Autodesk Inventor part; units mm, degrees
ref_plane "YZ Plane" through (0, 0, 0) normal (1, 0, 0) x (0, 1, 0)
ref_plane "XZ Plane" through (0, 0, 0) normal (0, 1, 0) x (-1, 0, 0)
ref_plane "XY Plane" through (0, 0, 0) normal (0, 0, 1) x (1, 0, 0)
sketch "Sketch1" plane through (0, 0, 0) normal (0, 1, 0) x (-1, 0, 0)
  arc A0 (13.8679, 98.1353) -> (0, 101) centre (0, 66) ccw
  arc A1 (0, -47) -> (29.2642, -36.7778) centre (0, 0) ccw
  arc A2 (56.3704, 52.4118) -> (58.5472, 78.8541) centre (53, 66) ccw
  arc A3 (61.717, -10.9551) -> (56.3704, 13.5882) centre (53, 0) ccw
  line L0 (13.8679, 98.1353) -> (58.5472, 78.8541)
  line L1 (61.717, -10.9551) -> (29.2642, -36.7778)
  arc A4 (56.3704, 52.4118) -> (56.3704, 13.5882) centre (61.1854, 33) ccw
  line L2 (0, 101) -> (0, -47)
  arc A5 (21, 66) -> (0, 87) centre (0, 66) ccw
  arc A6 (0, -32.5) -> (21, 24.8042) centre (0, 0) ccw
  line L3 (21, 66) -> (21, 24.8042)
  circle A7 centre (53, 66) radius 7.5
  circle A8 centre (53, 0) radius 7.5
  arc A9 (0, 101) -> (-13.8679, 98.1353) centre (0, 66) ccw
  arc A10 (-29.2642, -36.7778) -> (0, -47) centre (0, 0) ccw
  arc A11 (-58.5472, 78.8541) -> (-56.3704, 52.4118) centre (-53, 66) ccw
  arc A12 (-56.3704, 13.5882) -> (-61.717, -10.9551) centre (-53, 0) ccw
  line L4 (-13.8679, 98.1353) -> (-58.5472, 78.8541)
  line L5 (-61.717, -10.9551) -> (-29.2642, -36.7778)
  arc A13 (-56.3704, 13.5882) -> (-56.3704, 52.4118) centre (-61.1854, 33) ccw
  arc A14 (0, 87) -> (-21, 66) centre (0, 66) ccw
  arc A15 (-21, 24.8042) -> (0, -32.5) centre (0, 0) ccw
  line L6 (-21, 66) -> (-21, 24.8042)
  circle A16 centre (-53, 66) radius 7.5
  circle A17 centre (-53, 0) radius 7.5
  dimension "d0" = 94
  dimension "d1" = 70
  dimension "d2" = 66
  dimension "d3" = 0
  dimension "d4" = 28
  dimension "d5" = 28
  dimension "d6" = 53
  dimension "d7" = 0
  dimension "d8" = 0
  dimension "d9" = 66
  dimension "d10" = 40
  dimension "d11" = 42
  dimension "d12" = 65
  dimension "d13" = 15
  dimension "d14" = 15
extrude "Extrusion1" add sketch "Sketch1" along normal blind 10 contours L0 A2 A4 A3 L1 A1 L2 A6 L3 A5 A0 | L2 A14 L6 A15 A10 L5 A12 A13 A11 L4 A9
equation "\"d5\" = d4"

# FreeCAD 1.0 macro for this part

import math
import FreeCAD as App
import Part
import Sketcher

doc = App.newDocument("Part")
body = doc.addObject("PartDesign::Body", "Body")

# Sketch on XZ plane
sketch1 = body.newObject("Sketcher::SketchObject", "Sketch")
sketch1.AttachmentSupport = (doc.getObject("XZ_Plane"), [""])
sketch1.MapMode = "FlatFace"
sketch1.addGeometry([
    Part.LineSegment(App.Vector(-58.5472, 78.8541, 0), App.Vector(-13.8679, 98.1353, 0)),  # 0
    Part.ArcOfCircle(Part.Circle(App.Vector(0.000402, 65.998727, 0), App.Vector(0, 0, 1), 35.001273), math.radians(90.000657), math.radians(113.342257)),  # 1
    Part.ArcOfCircle(Part.Circle(App.Vector(0.000136, 66.001328, 0), App.Vector(0, 0, 1), 34.998672), math.radians(66.656863), math.radians(90.000222)),  # 2
    Part.LineSegment(App.Vector(13.8679, 98.1353, 0), App.Vector(58.5472, 78.8541, 0)),  # 3
    Part.ArcOfCircle(Part.Circle(App.Vector(53, 66, 0), App.Vector(0, 0, 1), 13.999976), math.radians(-76.069567), math.radians(66.657338)),  # 4
    Part.ArcOfCircle(Part.Circle(App.Vector(61.1854, 33, 0), App.Vector(0, 0, 1), 20.000055), math.radians(103.930771), math.radians(256.069229)),  # 5
    Part.ArcOfCircle(Part.Circle(App.Vector(53, 0, 0), App.Vector(0, 0, 1), 13.999956), math.radians(-51.490648), math.radians(76.069567)),  # 6
    Part.LineSegment(App.Vector(61.717, -10.9551, 0), App.Vector(29.2642, -36.7778, 0)),  # 7
    Part.ArcOfCircle(Part.Circle(App.Vector(0, 0, 0), App.Vector(0, 0, 1), 47), math.radians(-90), math.radians(-51.490634)),  # 8
    Part.ArcOfCircle(Part.Circle(App.Vector(0, 0, 0), App.Vector(0, 0, 1), 47), math.radians(-128.509366), math.radians(-90)),  # 9
    Part.LineSegment(App.Vector(-29.2642, -36.7778, 0), App.Vector(-61.717, -10.9551, 0)),  # 10
    Part.ArcOfCircle(Part.Circle(App.Vector(-53, 0, 0), App.Vector(0, 0, 1), 14.000011), math.radians(103.930433), math.radians(231.490648)),  # 11
    Part.ArcOfCircle(Part.Circle(App.Vector(-61.1854, 33, 0), App.Vector(0, 0, 1), 20.000055), math.radians(-76.069229), math.radians(76.069229)),  # 12
    Part.ArcOfCircle(Part.Circle(App.Vector(-53, 66, 0), App.Vector(0, 0, 1), 13.999956), math.radians(113.342662), math.radians(256.069567)),  # 13
    Part.ArcOfCircle(Part.Circle(App.Vector(0, 0, 0), App.Vector(0, 0, 1), 32.499974), math.radians(130.25228), math.radians(270)),  # 14
    Part.ArcOfCircle(Part.Circle(App.Vector(0, 0, 0), App.Vector(0, 0, 1), 32.5), math.radians(-90), math.radians(49.74772)),  # 15
    Part.LineSegment(App.Vector(21, 24.8042, 0), App.Vector(21, 66, 0)),  # 16
    Part.ArcOfCircle(Part.Circle(App.Vector(0, 66, 0), App.Vector(0, 0, 1), 21), math.radians(0), math.radians(180)),  # 17
    Part.LineSegment(App.Vector(-21, 66, 0), App.Vector(-21, 24.8042, 0)),  # 18
    Part.Circle(App.Vector(-53, 0, 0), App.Vector(0, 0, 1), 7.5),  # 19
    Part.Circle(App.Vector(-53, 66, 0), App.Vector(0, 0, 1), 7.5),  # 20
    Part.Circle(App.Vector(53, 0, 0), App.Vector(0, 0, 1), 7.5),  # 21
    Part.Circle(App.Vector(53, 66, 0), App.Vector(0, 0, 1), 7.5),  # 22
], False)
sketch1.addConstraint([
    Sketcher.Constraint("Coincident", 0, 2, 1, 2),
    Sketcher.Constraint("Coincident", 1, 1, 2, 2),
    Sketcher.Constraint("Coincident", 2, 1, 3, 1),
    Sketcher.Constraint("Coincident", 3, 2, 4, 2),
    Sketcher.Constraint("Coincident", 4, 1, 5, 1),
    Sketcher.Constraint("Coincident", 5, 2, 6, 2),
    Sketcher.Constraint("Coincident", 6, 1, 7, 1),
    Sketcher.Constraint("Coincident", 7, 2, 8, 2),
    Sketcher.Constraint("Coincident", 8, 1, 9, 2),
    Sketcher.Constraint("Coincident", 9, 1, 10, 1),
    Sketcher.Constraint("Coincident", 10, 2, 11, 2),
    Sketcher.Constraint("Coincident", 11, 1, 12, 1),
    Sketcher.Constraint("Coincident", 12, 2, 13, 2),
    Sketcher.Constraint("Coincident", 13, 1, 0, 1),
    Sketcher.Constraint("Coincident", 14, 2, 15, 1),
    Sketcher.Constraint("Coincident", 15, 2, 16, 1),
    Sketcher.Constraint("Coincident", 16, 2, 17, 1),
    Sketcher.Constraint("Coincident", 17, 2, 18, 1),
    Sketcher.Constraint("Coincident", 18, 2, 14, 1),
    Sketcher.Constraint("Vertical", 16),
    Sketcher.Constraint("Vertical", 18),
    Sketcher.Constraint("Coincident", 8, 3, -1, 1),
    Sketcher.Constraint("Coincident", 9, 3, -1, 1),
    Sketcher.Constraint("Coincident", 14, 3, -1, 1),
    Sketcher.Constraint("Coincident", 15, 3, -1, 1),
    Sketcher.Constraint("Coincident", 19, 3, 11, 3),
    Sketcher.Constraint("Coincident", 20, 3, 13, 3),
    Sketcher.Constraint("Coincident", 21, 3, 6, 3),
    Sketcher.Constraint("Coincident", 22, 3, 4, 3),
    Sketcher.Constraint("PointOnObject", 2, 3, -2),
    Sketcher.Constraint("PointOnObject", 6, 3, -1),
    Sketcher.Constraint("PointOnObject", 11, 3, -1),
    Sketcher.Constraint("PointOnObject", 17, 3, -2),
    Sketcher.Constraint("PointOnObject", 1, 1, -2),
    Sketcher.Constraint("PointOnObject", 8, 1, -2),
    Sketcher.Constraint("PointOnObject", 14, 2, -2),
    Sketcher.Constraint("Diameter", 19, 15.0),
    Sketcher.Constraint("Diameter", 20, 15.0),
    Sketcher.Constraint("Diameter", 21, 15.0),
    Sketcher.Constraint("Diameter", 22, 15.0),
    Sketcher.Constraint("Radius", 4, 14.0),
    Sketcher.Constraint("Radius", 5, 20.0),
    Sketcher.Constraint("Radius", 6, 14.0),
    Sketcher.Constraint("Radius", 8, 47.0),
    Sketcher.Constraint("Radius", 11, 14.0),
    Sketcher.Constraint("Radius", 12, 20.0),
    Sketcher.Constraint("Radius", 13, 14.0),
    Sketcher.Constraint("Radius", 17, 21.0),
    Sketcher.Constraint("Radius", 14, 32.5),
    Sketcher.Constraint("DistanceX", -1, 1, 4, 3, 53.0),
    Sketcher.Constraint("DistanceY", -1, 1, 4, 3, 66.0),
    Sketcher.Constraint("DistanceX", -1, 1, 6, 3, 53.0),
    Sketcher.Constraint("DistanceX", 11, 3, -1, 1, 53.0),
    Sketcher.Constraint("DistanceX", 13, 3, -1, 1, 53.0),
    Sketcher.Constraint("DistanceY", -1, 1, 13, 3, 66.0),
    Sketcher.Constraint("DistanceY", -1, 1, 17, 3, 66.0),
    Sketcher.Constraint("DistanceY", -1, 1, 16, 2, 66.0),
    Sketcher.Constraint("DistanceY", -1, 1, 17, 2, 66.0),
    Sketcher.Constraint("DistanceY", -1, 1, 1, 1, 101.0),
    Sketcher.Constraint("DistanceX", -1, 1, 1, 3, 0.0004),
    Sketcher.Constraint("Radius", 1, 35.0013),
    Sketcher.Constraint("Radius", 2, 34.9987),
    Sketcher.Constraint("DistanceX", 0, 2, -1, 1, 13.868),
    Sketcher.Constraint("DistanceX", -1, 1, 2, 1, 13.868),
    Sketcher.Constraint("DistanceY", -1, 1, 3, 2, 78.854),
    Sketcher.Constraint("DistanceX", -1, 1, 6, 1, 61.717),
    Sketcher.Constraint("DistanceX", 10, 2, -1, 1, 61.717),
    Sketcher.Constraint("DistanceY", -1, 1, 13, 1, 78.854),
    Sketcher.Constraint("DistanceX", 4, 1, 5, 3, 4.815),
    Sketcher.Constraint("DistanceX", 5, 2, 5, 3, 4.815),
    Sketcher.Constraint("DistanceX", 12, 3, 11, 1, 4.815),
    Sketcher.Constraint("DistanceX", 12, 3, 12, 2, 4.815),
    Sketcher.Constraint("Distance", 7, 41.4728),
    Sketcher.Constraint("Distance", 10, 41.4728),
])
pad1 = body.newObject("PartDesign::Pad", "Pad")
pad1.Profile = sketch1
pad1.Length = 10
pad1.Reversed = True

doc.recompute()
